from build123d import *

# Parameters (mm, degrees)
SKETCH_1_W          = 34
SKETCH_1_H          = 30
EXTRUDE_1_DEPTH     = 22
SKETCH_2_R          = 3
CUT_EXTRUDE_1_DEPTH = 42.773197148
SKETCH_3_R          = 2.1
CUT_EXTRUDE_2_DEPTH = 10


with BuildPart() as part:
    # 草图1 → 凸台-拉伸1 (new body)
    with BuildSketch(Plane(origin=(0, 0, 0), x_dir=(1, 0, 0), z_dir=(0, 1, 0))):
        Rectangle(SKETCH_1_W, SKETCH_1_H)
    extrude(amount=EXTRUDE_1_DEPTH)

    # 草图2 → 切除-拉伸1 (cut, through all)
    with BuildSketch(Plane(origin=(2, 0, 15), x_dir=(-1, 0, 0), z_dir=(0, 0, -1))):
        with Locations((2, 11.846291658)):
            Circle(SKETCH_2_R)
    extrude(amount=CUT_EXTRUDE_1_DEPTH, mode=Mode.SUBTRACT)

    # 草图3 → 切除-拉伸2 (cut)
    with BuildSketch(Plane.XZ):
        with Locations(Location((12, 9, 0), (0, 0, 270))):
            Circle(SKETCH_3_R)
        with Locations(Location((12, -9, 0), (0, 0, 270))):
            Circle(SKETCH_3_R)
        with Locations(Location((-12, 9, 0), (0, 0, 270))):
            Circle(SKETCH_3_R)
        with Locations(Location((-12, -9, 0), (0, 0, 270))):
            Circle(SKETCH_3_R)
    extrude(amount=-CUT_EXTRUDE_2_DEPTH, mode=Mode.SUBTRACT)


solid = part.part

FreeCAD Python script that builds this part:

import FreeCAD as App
import Part
import Sketcher

doc = App.newDocument("Part")
body = doc.addObject("PartDesign::Body", "Body")

# Sketch on XZ plane
sketch1 = body.newObject("Sketcher::SketchObject", "Sketch")
sketch1.AttachmentSupport = (doc.getObject("XZ_Plane"), [""])
sketch1.MapMode = "FlatFace"
sketch1.addGeometry([
    Part.LineSegment(App.Vector(-17, -15, 0), App.Vector(-17, 15, 0)),
    Part.LineSegment(App.Vector(-17, 15, 0), App.Vector(17, 15, 0)),
    Part.LineSegment(App.Vector(17, 15, 0), App.Vector(17, -15, 0)),
    Part.LineSegment(App.Vector(17, -15, 0), App.Vector(-17, -15, 0)),
], False)
sketch1.addConstraint([
    Sketcher.Constraint("Coincident", 0, 2, 1, 1),
    Sketcher.Constraint("Coincident", 1, 2, 2, 1),
    Sketcher.Constraint("Coincident", 2, 2, 3, 1),
    Sketcher.Constraint("Coincident", 3, 2, 0, 1),
    Sketcher.Constraint("Vertical", 0),
    Sketcher.Constraint("Horizontal", 1),
    Sketcher.Constraint("Vertical", 2),
    Sketcher.Constraint("Horizontal", 3),
    Sketcher.Constraint("Symmetric", 0, 2, 2, 2, -1, 1),
    Sketcher.Constraint("DistanceX", 1, 1, 1, 2, 34.0),
    Sketcher.Constraint("DistanceY", 0, 1, 0, 2, 30.0),
])
pad1 = body.newObject("PartDesign::Pad", "Pad")
pad1.Profile = sketch1
pad1.Length = 22
pad1.Reversed = True

# Sketch on XY plane
sketch2 = body.newObject("Sketcher::SketchObject", "Sketch001")
sketch2.AttachmentSupport = (doc.getObject("XY_Plane"), [""])
sketch2.MapMode = "FlatFace"
sketch2.AttachmentOffset = App.Placement(App.Vector(0, 0, 15), App.Rotation())
sketch2.addGeometry(Part.Circle(App.Vector(0, 11.846292, 0), App.Vector(0, 0, 1), 3), False)
sketch2.addConstraint([
    Sketcher.Constraint("PointOnObject", 0, 3, -2),
    Sketcher.Constraint("Diameter", 0, 6.0),
    Sketcher.Constraint("DistanceY", -1, 1, 0, 3, 11.846292),
])
pocket1 = body.newObject("PartDesign::Pocket", "Pocket")
pocket1.Profile = sketch2
pocket1.Type = "ThroughAll"

# Sketch on XZ plane
sketch3 = body.newObject("Sketcher::SketchObject", "Sketch002")
sketch3.AttachmentSupport = (doc.getObject("XZ_Plane"), [""])
sketch3.MapMode = "FlatFace"
sketch3.addGeometry([
    Part.Circle(App.Vector(12, 9, 0), App.Vector(0, 0, 1), 2.1),
    Part.Circle(App.Vector(12, -9, 0), App.Vector(0, 0, 1), 2.1),
    Part.Circle(App.Vector(-12, 9, 0), App.Vector(0, 0, 1), 2.1),
    Part.Circle(App.Vector(-12, -9, 0), App.Vector(0, 0, 1), 2.1),
], False)
sketch3.addConstraint([
    Sketcher.Constraint("Equal", 0, 1),
    Sketcher.Constraint("Equal", 1, 2),
    Sketcher.Constraint("Equal", 2, 3),
    Sketcher.Constraint("Symmetric", 1, 3, 2, 3, -1, 1),
    Sketcher.Constraint("Symmetric", 0, 3, 3, 3, -1, 1),
    Sketcher.Constraint("Symmetric", 0, 3, 2, 3, -2),
    Sketcher.Constraint("Diameter", 0, 4.2),
    Sketcher.Constraint("DistanceX", -1, 1, 0, 3, 12.0),
    Sketcher.Constraint("DistanceY", -1, 1, 0, 3, 9.0),
])
pocket2 = body.newObject("PartDesign::Pocket", "Pocket001")
pocket2.Profile = sketch3
pocket2.Length = 10

doc.recompute()
